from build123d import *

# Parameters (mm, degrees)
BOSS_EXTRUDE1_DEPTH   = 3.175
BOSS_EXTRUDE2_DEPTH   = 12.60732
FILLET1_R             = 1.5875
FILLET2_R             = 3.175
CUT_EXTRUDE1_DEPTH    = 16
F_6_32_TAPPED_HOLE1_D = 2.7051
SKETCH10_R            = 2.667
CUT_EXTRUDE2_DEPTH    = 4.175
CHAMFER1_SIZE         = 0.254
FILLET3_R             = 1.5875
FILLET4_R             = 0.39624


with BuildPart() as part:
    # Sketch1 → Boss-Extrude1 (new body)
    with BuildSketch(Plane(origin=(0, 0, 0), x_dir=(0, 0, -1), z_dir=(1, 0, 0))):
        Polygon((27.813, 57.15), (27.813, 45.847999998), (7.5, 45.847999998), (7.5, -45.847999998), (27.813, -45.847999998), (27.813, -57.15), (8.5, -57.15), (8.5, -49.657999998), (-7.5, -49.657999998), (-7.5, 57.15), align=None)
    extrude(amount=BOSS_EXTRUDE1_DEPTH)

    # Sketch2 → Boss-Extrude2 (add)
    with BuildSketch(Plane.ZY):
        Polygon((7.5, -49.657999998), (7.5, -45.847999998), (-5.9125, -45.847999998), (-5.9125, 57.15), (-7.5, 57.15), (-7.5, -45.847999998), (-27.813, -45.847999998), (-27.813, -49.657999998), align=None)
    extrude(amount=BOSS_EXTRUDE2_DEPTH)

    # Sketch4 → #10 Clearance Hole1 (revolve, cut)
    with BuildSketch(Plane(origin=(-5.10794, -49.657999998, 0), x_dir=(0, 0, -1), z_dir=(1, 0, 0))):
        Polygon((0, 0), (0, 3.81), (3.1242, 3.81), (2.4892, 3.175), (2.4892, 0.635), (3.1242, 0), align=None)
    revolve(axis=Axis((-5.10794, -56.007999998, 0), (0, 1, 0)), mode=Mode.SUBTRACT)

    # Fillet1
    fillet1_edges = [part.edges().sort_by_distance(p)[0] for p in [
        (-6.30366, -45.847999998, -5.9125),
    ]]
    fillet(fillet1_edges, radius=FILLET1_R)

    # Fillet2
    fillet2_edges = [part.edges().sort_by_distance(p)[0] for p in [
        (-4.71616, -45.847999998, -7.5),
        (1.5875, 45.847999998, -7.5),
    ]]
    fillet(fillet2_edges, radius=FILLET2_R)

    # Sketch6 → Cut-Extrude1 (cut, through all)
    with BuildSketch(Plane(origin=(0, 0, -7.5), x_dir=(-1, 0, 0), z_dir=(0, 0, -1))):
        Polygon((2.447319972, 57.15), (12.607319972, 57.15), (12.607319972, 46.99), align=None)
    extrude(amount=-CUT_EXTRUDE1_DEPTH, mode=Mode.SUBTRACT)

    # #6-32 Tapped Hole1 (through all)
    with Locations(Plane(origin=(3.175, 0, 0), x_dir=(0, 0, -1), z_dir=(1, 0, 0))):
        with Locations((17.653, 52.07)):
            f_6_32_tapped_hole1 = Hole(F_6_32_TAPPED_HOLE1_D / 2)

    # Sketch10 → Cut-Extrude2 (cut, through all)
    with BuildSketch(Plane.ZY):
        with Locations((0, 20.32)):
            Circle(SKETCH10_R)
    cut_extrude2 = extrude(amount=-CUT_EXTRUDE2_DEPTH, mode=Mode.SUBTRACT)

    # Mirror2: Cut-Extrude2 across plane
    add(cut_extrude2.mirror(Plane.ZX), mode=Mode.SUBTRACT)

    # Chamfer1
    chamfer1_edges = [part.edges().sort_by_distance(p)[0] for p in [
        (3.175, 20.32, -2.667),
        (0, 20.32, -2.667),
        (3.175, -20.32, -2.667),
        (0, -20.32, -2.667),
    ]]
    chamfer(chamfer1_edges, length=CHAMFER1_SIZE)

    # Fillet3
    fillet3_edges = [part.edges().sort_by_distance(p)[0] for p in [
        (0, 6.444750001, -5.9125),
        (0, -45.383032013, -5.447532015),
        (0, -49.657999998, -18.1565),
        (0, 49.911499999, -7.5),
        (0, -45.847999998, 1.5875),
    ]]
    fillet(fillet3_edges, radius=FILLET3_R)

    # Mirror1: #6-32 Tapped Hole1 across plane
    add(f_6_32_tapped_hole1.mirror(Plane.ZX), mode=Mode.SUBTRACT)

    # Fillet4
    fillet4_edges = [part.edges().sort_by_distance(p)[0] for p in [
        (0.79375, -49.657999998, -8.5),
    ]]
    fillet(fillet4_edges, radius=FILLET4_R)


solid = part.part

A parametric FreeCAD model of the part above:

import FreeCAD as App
import Part
import Sketcher
Q = App.Units.Quantity


def edges_at(feature, points):
    """Names of the edges that pass closest to the given points."""
    edges = feature.Shape.Edges
    near = lambda p: min(range(len(edges)), key=lambda i: edges[i].distToShape(Part.Vertex(*p))[0])
    return sorted({f"Edge{near(p) + 1}" for p in points})

doc = App.newDocument("Part")
body = doc.addObject("PartDesign::Body", "Body")

sketch1 = body.newObject("Sketcher::SketchObject", "Sketch")
sketch1.AttachmentSupport = (doc.getObject("YZ_Plane"), [""])
sketch1.MapMode = "FlatFace"
sketch1.addGeometry(Part.LineSegment(App.Vector(46, -28, 0), App.Vector(57, -28, 0)), False)
sketch1.addGeometry(Part.LineSegment(App.Vector(57, -28, 0), App.Vector(57, 8, 0)), False)
sketch1.addGeometry(Part.LineSegment(App.Vector(57, 8, 0), App.Vector(-50, 8, 0)), False)
sketch1.addGeometry(Part.LineSegment(App.Vector(-50, 8, 0), App.Vector(-50, -8, 0)), False)
sketch1.addGeometry(Part.LineSegment(App.Vector(-50, -8, 0), App.Vector(-57, -8, 0)), False)
sketch1.addGeometry(Part.LineSegment(App.Vector(-57, -8, 0), App.Vector(-57, -28, 0)), False)
sketch1.addGeometry(Part.LineSegment(App.Vector(-57, -28, 0), App.Vector(-46, -28, 0)), False)
sketch1.addGeometry(Part.LineSegment(App.Vector(-46, -28, 0), App.Vector(-46, -8, 0)), False)
sketch1.addGeometry(Part.LineSegment(App.Vector(-46, -8, 0), App.Vector(46, -8, 0)), False)
sketch1.addGeometry(Part.LineSegment(App.Vector(46, -8, 0), App.Vector(46, -28, 0)), False)
sketch1.addConstraint(Sketcher.Constraint("Coincident", 0, 2, 1, 1))
sketch1.addConstraint(Sketcher.Constraint("Coincident", 1, 2, 2, 1))
sketch1.addConstraint(Sketcher.Constraint("Coincident", 2, 2, 3, 1))
sketch1.addConstraint(Sketcher.Constraint("Coincident", 3, 2, 4, 1))
sketch1.addConstraint(Sketcher.Constraint("Coincident", 4, 2, 5, 1))
sketch1.addConstraint(Sketcher.Constraint("Coincident", 5, 2, 6, 1))
sketch1.addConstraint(Sketcher.Constraint("Coincident", 6, 2, 7, 1))
sketch1.addConstraint(Sketcher.Constraint("Coincident", 7, 2, 8, 1))
sketch1.addConstraint(Sketcher.Constraint("Coincident", 8, 2, 9, 1))
sketch1.addConstraint(Sketcher.Constraint("Coincident", 9, 2, 0, 1))
sketch1.addConstraint(Sketcher.Constraint("Horizontal", 0))
sketch1.addConstraint(Sketcher.Constraint("Vertical", 1))
sketch1.addConstraint(Sketcher.Constraint("Horizontal", 2))
sketch1.addConstraint(Sketcher.Constraint("Vertical", 3))
sketch1.addConstraint(Sketcher.Constraint("Horizontal", 4))
sketch1.addConstraint(Sketcher.Constraint("Vertical", 5))
sketch1.addConstraint(Sketcher.Constraint("Horizontal", 6))
sketch1.addConstraint(Sketcher.Constraint("Vertical", 7))
sketch1.addConstraint(Sketcher.Constraint("Horizontal", 8))
sketch1.addConstraint(Sketcher.Constraint("Vertical", 9))
sketch1.addConstraint(Sketcher.Constraint("Symmetric", 0, 2, 5, 2, -2))
sketch1.addConstraint(Sketcher.Constraint("Equal", 0, 6))
sketch1.addConstraint(Sketcher.Constraint("DistanceX", 4, 2, 1, 2, Q("4.5 in")))
sketch1.addConstraint(Sketcher.Constraint("DistanceX", 3, 2, 6, 2, Q("0.15 in")))
sketch1.addConstraint(Sketcher.Constraint("DistanceY", 0, 2, -1, 1, Q("1.095 in")))
sketch1.addConstraint(Sketcher.Constraint("DistanceX", 0, 1, 0, 2, Q("11.302 mm")))
sketch1.addConstraint(Sketcher.Constraint("DistanceY", 1, 1, 1, 2, Q("35.313 mm")))
sketch1.addConstraint(Sketcher.Constraint("DistanceY", 3, 2, 3, 1, Q("16 mm")))
sketch1.addConstraint(Sketcher.Constraint("DistanceY", 7, 1, 7, 2, Q("20.313 mm")))
pad1 = body.newObject("PartDesign::Pad", "Pad")
pad1.Profile = sketch1
pad1.Length = Q("0.125 in")

sketch2 = body.newObject("Sketcher::SketchObject", "Sketch001")
sketch2.AttachmentSupport = (doc.getObject("YZ_Plane"), [""])
sketch2.MapMode = "FlatFace"
sketch2.addGeometry(Part.LineSegment(App.Vector(-49.7, 7.5, 0), App.Vector(-45.8, 7.5, 0)), False)
sketch2.addGeometry(Part.LineSegment(App.Vector(-45.8, 7.5, 0), App.Vector(-45.8, -5.9, 0)), False)
sketch2.addGeometry(Part.LineSegment(App.Vector(-45.8, -5.9, 0), App.Vector(57.1, -5.9, 0)), False)
sketch2.addGeometry(Part.LineSegment(App.Vector(57.1, -5.9, 0), App.Vector(57.1, -7.5, 0)), False)
sketch2.addGeometry(Part.LineSegment(App.Vector(57.1, -7.5, 0), App.Vector(-45.8, -7.5, 0)), False)
sketch2.addGeometry(Part.LineSegment(App.Vector(-45.8, -7.5, 0), App.Vector(-45.8, -27.8, 0)), False)
sketch2.addGeometry(Part.LineSegment(App.Vector(-45.8, -27.8, 0), App.Vector(-49.7, -27.8, 0)), False)
sketch2.addGeometry(Part.LineSegment(App.Vector(-49.7, -27.8, 0), App.Vector(-49.7, 7.5, 0)), False)
sketch2.addConstraint(Sketcher.Constraint("Coincident", 0, 2, 1, 1))
sketch2.addConstraint(Sketcher.Constraint("Coincident", 1, 2, 2, 1))
sketch2.addConstraint(Sketcher.Constraint("Coincident", 2, 2, 3, 1))
sketch2.addConstraint(Sketcher.Constraint("Coincident", 3, 2, 4, 1))
sketch2.addConstraint(Sketcher.Constraint("Coincident", 4, 2, 5, 1))
sketch2.addConstraint(Sketcher.Constraint("Coincident", 5, 2, 6, 1))
sketch2.addConstraint(Sketcher.Constraint("Coincident", 6, 2, 7, 1))
sketch2.addConstraint(Sketcher.Constraint("Coincident", 7, 2, 0, 1))
sketch2.addConstraint(Sketcher.Constraint("Horizontal", 0))
sketch2.addConstraint(Sketcher.Constraint("Vertical", 1))
sketch2.addConstraint(Sketcher.Constraint("Horizontal", 2))
sketch2.addConstraint(Sketcher.Constraint("Vertical", 3))
sketch2.addConstraint(Sketcher.Constraint("Horizontal", 4))
sketch2.addConstraint(Sketcher.Constraint("Vertical", 5))
sketch2.addConstraint(Sketcher.Constraint("Horizontal", 6))
sketch2.addConstraint(Sketcher.Constraint("Vertical", 7))
sketch2.addConstraint(Sketcher.Constraint("Symmetric", 0, 2, 4, 2, -1))
sketch2.addConstraint(Sketcher.Constraint("DistanceX", 0, 1, 0, 2, Q("0.15 in")))
sketch2.addConstraint(Sketcher.Constraint("DistanceY", 3, 2, 3, 1, Q("0.0625 in")))
sketch2.addConstraint(Sketcher.Constraint("DistanceX", -1, 1, 2, 2, Q("2.25 in")))
sketch2.addConstraint(Sketcher.Constraint("DistanceY", 5, 2, -1, 1, Q("1.095 in")))
sketch2.addConstraint(Sketcher.Constraint("DistanceX", 2, 1, 2, 2, Q("102.998 mm")))
sketch2.addConstraint(Sketcher.Constraint("DistanceY", 1, 2, 1, 1, Q("13.4125 mm")))
pad2 = body.newObject("PartDesign::Pad", "Pad001")
pad2.Profile = sketch2
pad2.Length = 12.60732
pad2.Reversed = True

sketch3 = body.newObject("Sketcher::SketchObject", "Sketch002")
sketch3.AttachmentSupport = (doc.getObject("YZ_Plane"), [""])
sketch3.MapMode = "FlatFace"
sketch3.AttachmentOffset = App.Placement(App.Vector(0, 0, -0.2011 * 25.4), App.Rotation())
sketch3.addGeometry(Part.LineSegment(App.Vector(-45.8, 0, 0), App.Vector(-49.7, 0, 0)), False)
sketch3.addGeometry(Part.LineSegment(App.Vector(-49.7, 0, 0), App.Vector(-49.7, -3.1, 0)), False)
sketch3.addGeometry(Part.LineSegment(App.Vector(-49.7, -3.1, 0), App.Vector(-49, -2.5, 0)), False)
sketch3.addGeometry(Part.LineSegment(App.Vector(-49, -2.5, 0), App.Vector(-46.5, -2.5, 0)), False)
sketch3.addGeometry(Part.LineSegment(App.Vector(-46.5, -2.5, 0), App.Vector(-45.8, -3.1, 0)), False)
sketch3.addGeometry(Part.LineSegment(App.Vector(-45.8, -3.1, 0), App.Vector(-45.8, 0, 0)), False)
sketch3.addConstraint(Sketcher.Constraint("Coincident", 0, 2, 1, 1))
sketch3.addConstraint(Sketcher.Constraint("Coincident", 1, 2, 2, 1))
sketch3.addConstraint(Sketcher.Constraint("Coincident", 2, 2, 3, 1))
sketch3.addConstraint(Sketcher.Constraint("Coincident", 3, 2, 4, 1))
sketch3.addConstraint(Sketcher.Constraint("Coincident", 4, 2, 5, 1))
sketch3.addConstraint(Sketcher.Constraint("Coincident", 5, 2, 0, 1))
sketch3.addConstraint(Sketcher.Constraint("Horizontal", 0))
sketch3.addConstraint(Sketcher.Constraint("Vertical", 1))
sketch3.addConstraint(Sketcher.Constraint("Horizontal", 3))
sketch3.addConstraint(Sketcher.Constraint("Vertical", 5))
sketch3.addConstraint(Sketcher.Constraint("PointOnObject", 0, 2, -1))
sketch3.addConstraint(Sketcher.Constraint("Perpendicular", 2, 4))
sketch3.addConstraint(Sketcher.Constraint("Horizontal", 1, 2, 4, 2))
sketch3.addConstraint(Sketcher.Constraint("Equal", 2, 4))
sketch3.addConstraint(Sketcher.Constraint("DistanceX", 3, 1, 3, 2, Q("0.1 in")))
sketch3.addConstraint(Sketcher.Constraint("DistanceX", 0, 2, 0, 1, Q("0.15 in")))
sketch3.addConstraint(Sketcher.Constraint("DistanceY", 1, 2, 1, 1, Q("0.123 in")))
sketch3.addConstraint(Sketcher.Constraint("DistanceX", 0, 2, -1, 1, Q("49.658 mm")))
groove = body.newObject("PartDesign::Groove", "Groove")
groove.Profile = sketch3
groove.ReferenceAxis = (sketch3, ["H_Axis"])
groove.Angle = 360
doc.recompute()

fillet = body.newObject("PartDesign::Fillet", "Fillet")
fillet.Base = (groove, edges_at(groove, [(-6.304, -45.848, -5.912)]))
fillet.Radius = Q("0.0625 in")
doc.recompute()

fillet2 = body.newObject("PartDesign::Fillet", "Fillet001")
fillet2.Base = (fillet, edges_at(fillet, [(-4.716, -45.848, -7.5), (1.587, 45.848, -7.5)]))
fillet2.Radius = Q("0.125 in")

sketch4 = body.newObject("Sketcher::SketchObject", "Sketch003")
sketch4.AttachmentSupport = (doc.getObject("XY_Plane"), [""])
sketch4.MapMode = "FlatFace"
sketch4.AttachmentOffset = App.Placement(App.Vector(0, 0, -7.5), App.Rotation())
sketch4.addGeometry(Part.LineSegment(App.Vector(-13, 57, 0), App.Vector(-2, 57, 0)), False)
sketch4.addGeometry(Part.LineSegment(App.Vector(-2, 57, 0), App.Vector(-13, 47, 0)), False)
sketch4.addGeometry(Part.LineSegment(App.Vector(-13, 47, 0), App.Vector(-13, 57, 0)), False)
sketch4.addConstraint(Sketcher.Constraint("Coincident", 0, 2, 1, 1))
sketch4.addConstraint(Sketcher.Constraint("Coincident", 1, 2, 2, 1))
sketch4.addConstraint(Sketcher.Constraint("Coincident", 2, 2, 0, 1))
sketch4.addConstraint(Sketcher.Constraint("Horizontal", 0))
sketch4.addConstraint(Sketcher.Constraint("Vertical", 2))
sketch4.addConstraint(Sketcher.Constraint("Equal", 0, 2))
sketch4.addConstraint(Sketcher.Constraint("DistanceX", 0, 1, 0, 2, Q("0.4 in")))
sketch4.addConstraint(Sketcher.Constraint("DistanceY", -1, 1, 0, 2, Q("2.25 in")))
sketch4.addConstraint(Sketcher.Constraint("DistanceX", 0, 2, -1, 1, Q("2.44732 mm")))
pocket1 = body.newObject("PartDesign::Pocket", "Pocket")
pocket1.Profile = sketch4
pocket1.Type = "ThroughAll"
pocket1.Reversed = True

sketch5 = body.newObject("Sketcher::SketchObject", "Sketch004")
sketch5.AttachmentSupport = (doc.getObject("YZ_Plane"), [""])
sketch5.MapMode = "FlatFace"
sketch5.AttachmentOffset = App.Placement(App.Vector(0, 0, 0.125 * 25.4), App.Rotation())
sketch5.addGeometry(Part.Circle(App.Vector(52.1, -17.7, 0), App.Vector(0, 0, 1), 1.4), False)
sketch5.addConstraint(Sketcher.Constraint("Diameter", 0, Q("0.1065 in")))
sketch5.addConstraint(Sketcher.Constraint("DistanceX", -1, 1, 0, 3, Q("2.05 in")))
sketch5.addConstraint(Sketcher.Constraint("DistanceY", 0, 3, -1, 1, Q("0.695 in")))
doc.recompute()
hole = body.newObject("PartDesign::Hole", "Hole")
hole.Profile = sketch5
hole.ThreadType = "None"
hole.Diameter = Q("0.1065 in")
hole.DepthType = "ThroughAll"

sketch6 = body.newObject("Sketcher::SketchObject", "Sketch005")
sketch6.AttachmentSupport = (doc.getObject("YZ_Plane"), [""])
sketch6.MapMode = "FlatFace"
sketch6.addGeometry(Part.Circle(App.Vector(20.3, 0, 0), App.Vector(0, 0, 1), 2.7), False)
sketch6.addConstraint(Sketcher.Constraint("PointOnObject", 0, 3, -1))
sketch6.addConstraint(Sketcher.Constraint("Diameter", 0, Q("0.21 in")))
sketch6.addConstraint(Sketcher.Constraint("DistanceX", -1, 1, 0, 3, Q("0.8 in")))
pocket2 = body.newObject("PartDesign::Pocket", "Pocket001")
pocket2.Profile = sketch6
pocket2.Type = "ThroughAll"
pocket2.Reversed = True
doc.recompute()

mirrored = body.newObject("PartDesign::Mirrored", "Mirrored")
mirrored.Originals = [pocket2]
mirrored.MirrorPlane = (doc.getObject("XZ_Plane"), [""])
body.Tip = mirrored
doc.recompute()

chamfer = body.newObject("PartDesign::Chamfer", "Chamfer")
chamfer.Base = (mirrored, edges_at(mirrored, [
    (3.175, 20.32, -2.667),
    (0, 20.32, -2.667),
    (3.175, -20.32, -2.667),
    (0, -20.32, -2.667),
]))
chamfer.Size = Q("0.01 in")
doc.recompute()

fillet3 = body.newObject("PartDesign::Fillet", "Fillet002")
fillet3.Base = (chamfer, edges_at(chamfer, [
    (0, 6.445, -5.912),
    (0, -45.383, -5.448),
    (0, -49.658, -18.157),
    (0, 49.911, -7.5),
    (0, -45.848, 1.587),
]))
fillet3.Radius = Q("0.0625 in")
doc.recompute()

mirrored2 = body.newObject("PartDesign::Mirrored", "Mirrored001")
mirrored2.Originals = [hole]
mirrored2.MirrorPlane = (doc.getObject("XZ_Plane"), [""])
body.Tip = mirrored2
doc.recompute()

fillet4 = body.newObject("PartDesign::Fillet", "Fillet003")
fillet4.Base = (mirrored2, edges_at(mirrored2, [(0.794, -49.658, -8.5)]))
fillet4.Radius = Q("0.0156 in")

doc.recompute()
